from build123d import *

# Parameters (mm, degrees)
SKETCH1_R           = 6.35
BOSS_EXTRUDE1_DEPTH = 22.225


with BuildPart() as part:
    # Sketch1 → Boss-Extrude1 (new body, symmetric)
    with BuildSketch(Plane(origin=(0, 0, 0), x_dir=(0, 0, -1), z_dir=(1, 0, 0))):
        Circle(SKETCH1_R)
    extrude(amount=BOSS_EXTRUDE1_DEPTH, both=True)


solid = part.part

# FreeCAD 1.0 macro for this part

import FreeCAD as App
import Part
import Sketcher

V = App.Vector
Q = App.Units.Quantity

doc = App.newDocument("Part")
body = doc.addObject("PartDesign::Body", "Body")

# Sketch on YZ plane
sketch1 = body.newObject("Sketcher::SketchObject", "Sketch")
sketch1.AttachmentSupport = (doc.getObject("YZ_Plane"), [""])
sketch1.MapMode = "FlatFace"
sketch1.addGeometry(Part.Circle(V(0, 0, 0), V(0, 0, 1), 6), False)
sketch1.addConstraint(Sketcher.Constraint("Coincident", 0, 3, -1, 1))
sketch1.addConstraint(Sketcher.Constraint("Diameter", 0, Q("0.5 in")))
pad1 = body.newObject("PartDesign::Pad", "Pad")
pad1.Profile = sketch1
pad1.Length = Q("1.75 in")
pad1.Midplane = True

doc.recompute()
